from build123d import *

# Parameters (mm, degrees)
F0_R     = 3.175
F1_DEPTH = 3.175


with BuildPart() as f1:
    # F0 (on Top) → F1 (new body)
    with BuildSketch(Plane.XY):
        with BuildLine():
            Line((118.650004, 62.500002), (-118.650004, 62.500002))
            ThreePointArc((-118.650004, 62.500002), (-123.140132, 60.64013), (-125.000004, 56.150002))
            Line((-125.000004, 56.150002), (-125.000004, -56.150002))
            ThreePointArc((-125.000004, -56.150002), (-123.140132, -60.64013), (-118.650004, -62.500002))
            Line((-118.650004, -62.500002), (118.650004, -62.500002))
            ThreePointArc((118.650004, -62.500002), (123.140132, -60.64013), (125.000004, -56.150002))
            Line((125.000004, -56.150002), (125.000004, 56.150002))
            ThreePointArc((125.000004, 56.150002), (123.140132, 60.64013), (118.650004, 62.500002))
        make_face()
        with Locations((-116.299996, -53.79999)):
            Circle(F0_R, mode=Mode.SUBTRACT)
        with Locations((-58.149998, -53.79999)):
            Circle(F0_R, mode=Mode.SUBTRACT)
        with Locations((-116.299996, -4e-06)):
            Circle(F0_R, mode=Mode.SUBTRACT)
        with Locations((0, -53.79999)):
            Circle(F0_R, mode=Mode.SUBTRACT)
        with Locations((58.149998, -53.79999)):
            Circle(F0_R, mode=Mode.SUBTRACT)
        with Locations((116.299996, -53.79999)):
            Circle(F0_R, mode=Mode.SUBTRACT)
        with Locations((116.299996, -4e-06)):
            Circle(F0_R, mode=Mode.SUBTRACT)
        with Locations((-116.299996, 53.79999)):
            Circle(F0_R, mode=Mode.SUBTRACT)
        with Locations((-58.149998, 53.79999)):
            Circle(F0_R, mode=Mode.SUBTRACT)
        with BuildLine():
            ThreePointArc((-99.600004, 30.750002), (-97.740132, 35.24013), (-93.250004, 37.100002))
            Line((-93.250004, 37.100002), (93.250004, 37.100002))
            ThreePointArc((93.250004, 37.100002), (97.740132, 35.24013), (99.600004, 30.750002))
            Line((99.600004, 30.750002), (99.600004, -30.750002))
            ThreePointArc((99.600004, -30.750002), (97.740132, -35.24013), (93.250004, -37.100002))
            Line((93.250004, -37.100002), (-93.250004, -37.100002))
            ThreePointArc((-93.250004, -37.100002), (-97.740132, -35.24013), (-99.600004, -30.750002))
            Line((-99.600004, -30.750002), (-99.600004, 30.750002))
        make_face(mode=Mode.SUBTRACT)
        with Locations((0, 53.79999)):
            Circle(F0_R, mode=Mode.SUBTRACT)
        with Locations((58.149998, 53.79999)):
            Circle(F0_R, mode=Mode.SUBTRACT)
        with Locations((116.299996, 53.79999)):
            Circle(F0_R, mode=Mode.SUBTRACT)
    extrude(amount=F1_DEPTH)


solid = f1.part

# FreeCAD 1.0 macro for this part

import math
import FreeCAD as App
import Part
import Sketcher
Q = App.Units.Quantity

doc = App.newDocument("Part")
params = doc.addObject("Spreadsheet::Sheet", "Params")
for row, (alias, value) in enumerate([
    ("sketch1_diameter", "0.25 in"),
    ("sketch1_radius", "0.25 in"),
    ("pad1_length", "0.125 in"),
], start=1):
    params.set(f"A{row}", alias)
    params.set(f"B{row}", "=" + value)
    params.setAlias(f"B{row}", alias)

body = doc.addObject("PartDesign::Body", "Body")

# Sketch on XY plane
sketch1 = body.newObject("Sketcher::SketchObject", "Sketch")
sketch1.AttachmentSupport = (doc.getObject("XY_Plane"), [""])
sketch1.MapMode = "FlatFace"
sketch1.addGeometry(Part.LineSegment(App.Vector(118.650004, 62.500002, 0), App.Vector(-118.650004, 62.500002, 0)), False)
sketch1.addGeometry(Part.ArcOfCircle(Part.Circle(App.Vector(-118.650004, 56.150002, 0), App.Vector(0, 0, 1), 6.35), math.radians(90.000002), math.radians(179.999998)), False)
sketch1.addGeometry(Part.LineSegment(App.Vector(-125.000004, 56.150002, 0), App.Vector(-125.000004, -56.150002, 0)), False)
sketch1.addGeometry(Part.ArcOfCircle(Part.Circle(App.Vector(-118.650004, -56.150002, 0), App.Vector(0, 0, 1), 6.35), math.radians(-179.999998), math.radians(-90.000002)), False)
sketch1.addGeometry(Part.LineSegment(App.Vector(-118.650004, -62.500002, 0), App.Vector(118.650004, -62.500002, 0)), False)
sketch1.addGeometry(Part.ArcOfCircle(Part.Circle(App.Vector(118.650004, -56.150002, 0), App.Vector(0, 0, 1), 6.35), math.radians(-89.999998), math.radians(-0.000002)), False)
sketch1.addGeometry(Part.LineSegment(App.Vector(125.000004, -56.150002, 0), App.Vector(125.000004, 56.150002, 0)), False)
sketch1.addGeometry(Part.ArcOfCircle(Part.Circle(App.Vector(118.650004, 56.150002, 0), App.Vector(0, 0, 1), 6.35), math.radians(0.000002), math.radians(89.999998)), False)
sketch1.addGeometry(Part.Circle(App.Vector(-116.299996, -53.79999, 0), App.Vector(0, 0, 1), 3.175), False)
sketch1.addGeometry(Part.Circle(App.Vector(-58.149998, -53.79999, 0), App.Vector(0, 0, 1), 3.175), False)
sketch1.addGeometry(Part.Circle(App.Vector(-116.299996, -0.000004, 0), App.Vector(0, 0, 1), 3.175), False)
sketch1.addGeometry(Part.Circle(App.Vector(0, -53.79999, 0), App.Vector(0, 0, 1), 3.175), False)
sketch1.addGeometry(Part.Circle(App.Vector(58.149998, -53.79999, 0), App.Vector(0, 0, 1), 3.175), False)
sketch1.addGeometry(Part.Circle(App.Vector(116.299996, -53.79999, 0), App.Vector(0, 0, 1), 3.175), False)
sketch1.addGeometry(Part.Circle(App.Vector(116.299996, -0.000004, 0), App.Vector(0, 0, 1), 3.175), False)
sketch1.addGeometry(Part.Circle(App.Vector(-116.299996, 53.79999, 0), App.Vector(0, 0, 1), 3.175), False)
sketch1.addGeometry(Part.Circle(App.Vector(-58.149998, 53.79999, 0), App.Vector(0, 0, 1), 3.175), False)
sketch1.addGeometry(Part.LineSegment(App.Vector(-99.600004, -30.750002, 0), App.Vector(-99.600004, 30.750002, 0)), False)
sketch1.addGeometry(Part.ArcOfCircle(Part.Circle(App.Vector(-93.250004, 30.750002, 0), App.Vector(0, 0, 1), 6.35), math.radians(90.000002), math.radians(179.999998)), False)
sketch1.addGeometry(Part.LineSegment(App.Vector(-93.250004, 37.100002, 0), App.Vector(93.250004, 37.100002, 0)), False)
sketch1.addGeometry(Part.ArcOfCircle(Part.Circle(App.Vector(93.250004, 30.750002, 0), App.Vector(0, 0, 1), 6.35), math.radians(0.000002), math.radians(89.999998)), False)
sketch1.addGeometry(Part.LineSegment(App.Vector(99.600004, 30.750002, 0), App.Vector(99.600004, -30.750002, 0)), False)
sketch1.addGeometry(Part.ArcOfCircle(Part.Circle(App.Vector(93.250004, -30.750002, 0), App.Vector(0, 0, 1), 6.35), math.radians(-89.999998), math.radians(-0.000002)), False)
sketch1.addGeometry(Part.LineSegment(App.Vector(93.250004, -37.100002, 0), App.Vector(-93.250004, -37.100002, 0)), False)
sketch1.addGeometry(Part.ArcOfCircle(Part.Circle(App.Vector(-93.250004, -30.750002, 0), App.Vector(0, 0, 1), 6.35), math.radians(-179.999998), math.radians(-90.000002)), False)
sketch1.addGeometry(Part.Circle(App.Vector(0, 53.79999, 0), App.Vector(0, 0, 1), 3.175), False)
sketch1.addGeometry(Part.Circle(App.Vector(58.149998, 53.79999, 0), App.Vector(0, 0, 1), 3.175), False)
sketch1.addGeometry(Part.Circle(App.Vector(116.299996, 53.79999, 0), App.Vector(0, 0, 1), 3.175), False)
sketch1.addConstraint(Sketcher.Constraint("Tangent", 0, 2, 1, 1))
sketch1.addConstraint(Sketcher.Constraint("Tangent", 1, 2, 2, 1))
sketch1.addConstraint(Sketcher.Constraint("Tangent", 2, 2, 3, 1))
sketch1.addConstraint(Sketcher.Constraint("Tangent", 3, 2, 4, 1))
sketch1.addConstraint(Sketcher.Constraint("Tangent", 4, 2, 5, 1))
sketch1.addConstraint(Sketcher.Constraint("Tangent", 5, 2, 6, 1))
sketch1.addConstraint(Sketcher.Constraint("Tangent", 6, 2, 7, 1))
sketch1.addConstraint(Sketcher.Constraint("Tangent", 7, 2, 0, 1))
sketch1.addConstraint(Sketcher.Constraint("Tangent", 17, 2, 18, 2))
sketch1.addConstraint(Sketcher.Constraint("Tangent", 18, 1, 19, 1))
sketch1.addConstraint(Sketcher.Constraint("Tangent", 19, 2, 20, 2))
sketch1.addConstraint(Sketcher.Constraint("Tangent", 20, 1, 21, 1))
sketch1.addConstraint(Sketcher.Constraint("Tangent", 21, 2, 22, 2))
sketch1.addConstraint(Sketcher.Constraint("Tangent", 22, 1, 23, 1))
sketch1.addConstraint(Sketcher.Constraint("Tangent", 23, 2, 24, 2))
sketch1.addConstraint(Sketcher.Constraint("Tangent", 24, 1, 17, 1))
sketch1.addConstraint(Sketcher.Constraint("Horizontal", 0))
sketch1.addConstraint(Sketcher.Constraint("Vertical", 2))
sketch1.addConstraint(Sketcher.Constraint("Horizontal", 4))
sketch1.addConstraint(Sketcher.Constraint("Vertical", 6))
sketch1.addConstraint(Sketcher.Constraint("Vertical", 17))
sketch1.addConstraint(Sketcher.Constraint("Horizontal", 19))
sketch1.addConstraint(Sketcher.Constraint("Vertical", 21))
sketch1.addConstraint(Sketcher.Constraint("Horizontal", 23))
sketch1.addConstraint(Sketcher.Constraint("Equal", 1, 3))
sketch1.addConstraint(Sketcher.Constraint("Equal", 3, 5))
sketch1.addConstraint(Sketcher.Constraint("Equal", 5, 7))
sketch1.addConstraint(Sketcher.Constraint("Equal", 8, 9))
sketch1.addConstraint(Sketcher.Constraint("Equal", 9, 10))
sketch1.addConstraint(Sketcher.Constraint("Equal", 10, 11))
sketch1.addConstraint(Sketcher.Constraint("Equal", 11, 12))
sketch1.addConstraint(Sketcher.Constraint("Equal", 12, 13))
sketch1.addConstraint(Sketcher.Constraint("Equal", 13, 14))
sketch1.addConstraint(Sketcher.Constraint("Equal", 14, 15))
sketch1.addConstraint(Sketcher.Constraint("Equal", 15, 16))
sketch1.addConstraint(Sketcher.Constraint("Equal", 7, 18))
sketch1.addConstraint(Sketcher.Constraint("Equal", 18, 20))
sketch1.addConstraint(Sketcher.Constraint("Equal", 20, 22))
sketch1.addConstraint(Sketcher.Constraint("Equal", 22, 24))
sketch1.addConstraint(Sketcher.Constraint("Equal", 16, 25))
sketch1.addConstraint(Sketcher.Constraint("Equal", 25, 26))
sketch1.addConstraint(Sketcher.Constraint("Equal", 26, 27))
sketch1.addConstraint(Sketcher.Constraint("Symmetric", 1, 3, 5, 3, -1, 1))
sketch1.addConstraint(Sketcher.Constraint("Symmetric", 10, 3, 14, 3, -1, 1))
sketch1.addConstraint(Sketcher.Constraint("Symmetric", 13, 3, 15, 3, -1, 1))
sketch1.addConstraint(Sketcher.Constraint("Symmetric", 12, 3, 16, 3, -1, 1))
sketch1.addConstraint(Sketcher.Constraint("Symmetric", 18, 3, 22, 3, -1, 1))
sketch1.addConstraint(Sketcher.Constraint("Symmetric", 11, 3, 25, 3, -1, 1))
sketch1.addConstraint(Sketcher.Constraint("Symmetric", 9, 3, 26, 3, -1, 1))
sketch1.addConstraint(Sketcher.Constraint("Symmetric", 8, 3, 27, 3, -1, 1))
sketch1.addConstraint(Sketcher.Constraint("Symmetric", 9, 3, 12, 3, -2))
sketch1.addConstraint(Sketcher.Constraint("Symmetric", 8, 3, 13, 3, -2))
sketch1.addConstraint(Sketcher.Constraint("PointOnObject", 11, 3, -2))
sketch1.addConstraint(Sketcher.Constraint("Horizontal", 8, 3, 9, 3))
sketch1.addConstraint(Sketcher.Constraint("Horizontal", 9, 3, 11, 3))
sketch1.addConstraint(Sketcher.Constraint("Horizontal", 10, 3, 14, 3))
sketch1.addConstraint(Sketcher.Constraint("Vertical", 8, 3, 10, 3))
sketch1.addConstraint(Sketcher.Constraint("Diameter", 8, Q("0.25 in")))
sketch1.addConstraint(Sketcher.Constraint("Radius", 1, Q("0.25 in")))
sketch1.addConstraint(Sketcher.Constraint("DistanceX", 1, 3, 18, 3, Q("1 in")))
sketch1.addConstraint(Sketcher.Constraint("DistanceY", 18, 3, 1, 3, Q("1 in")))
sketch1.addConstraint(Sketcher.Constraint("DistanceX", 8, 3, 5, 3, Q("9.25 in")))
sketch1.addConstraint(Sketcher.Constraint("DistanceX", 0, 2, 0, 1, 237.300008))
sketch1.addConstraint(Sketcher.Constraint("DistanceY", -1, 1, 1, 3, 56.150002))
sketch1.addConstraint(Sketcher.Constraint("DistanceX", 9, 3, 5, 3, 176.800002))
sketch1.addConstraint(Sketcher.Constraint("DistanceY", 8, 3, -1, 1, 53.79999))
sketch1.setExpression("Constraints[57]", "Params.sketch1_diameter")
sketch1.setExpression("Constraints[58]", "Params.sketch1_radius")
pad1 = body.newObject("PartDesign::Pad", "Pad")
pad1.Profile = sketch1
pad1.setExpression("Length", "Params.pad1_length")

doc.recompute()
